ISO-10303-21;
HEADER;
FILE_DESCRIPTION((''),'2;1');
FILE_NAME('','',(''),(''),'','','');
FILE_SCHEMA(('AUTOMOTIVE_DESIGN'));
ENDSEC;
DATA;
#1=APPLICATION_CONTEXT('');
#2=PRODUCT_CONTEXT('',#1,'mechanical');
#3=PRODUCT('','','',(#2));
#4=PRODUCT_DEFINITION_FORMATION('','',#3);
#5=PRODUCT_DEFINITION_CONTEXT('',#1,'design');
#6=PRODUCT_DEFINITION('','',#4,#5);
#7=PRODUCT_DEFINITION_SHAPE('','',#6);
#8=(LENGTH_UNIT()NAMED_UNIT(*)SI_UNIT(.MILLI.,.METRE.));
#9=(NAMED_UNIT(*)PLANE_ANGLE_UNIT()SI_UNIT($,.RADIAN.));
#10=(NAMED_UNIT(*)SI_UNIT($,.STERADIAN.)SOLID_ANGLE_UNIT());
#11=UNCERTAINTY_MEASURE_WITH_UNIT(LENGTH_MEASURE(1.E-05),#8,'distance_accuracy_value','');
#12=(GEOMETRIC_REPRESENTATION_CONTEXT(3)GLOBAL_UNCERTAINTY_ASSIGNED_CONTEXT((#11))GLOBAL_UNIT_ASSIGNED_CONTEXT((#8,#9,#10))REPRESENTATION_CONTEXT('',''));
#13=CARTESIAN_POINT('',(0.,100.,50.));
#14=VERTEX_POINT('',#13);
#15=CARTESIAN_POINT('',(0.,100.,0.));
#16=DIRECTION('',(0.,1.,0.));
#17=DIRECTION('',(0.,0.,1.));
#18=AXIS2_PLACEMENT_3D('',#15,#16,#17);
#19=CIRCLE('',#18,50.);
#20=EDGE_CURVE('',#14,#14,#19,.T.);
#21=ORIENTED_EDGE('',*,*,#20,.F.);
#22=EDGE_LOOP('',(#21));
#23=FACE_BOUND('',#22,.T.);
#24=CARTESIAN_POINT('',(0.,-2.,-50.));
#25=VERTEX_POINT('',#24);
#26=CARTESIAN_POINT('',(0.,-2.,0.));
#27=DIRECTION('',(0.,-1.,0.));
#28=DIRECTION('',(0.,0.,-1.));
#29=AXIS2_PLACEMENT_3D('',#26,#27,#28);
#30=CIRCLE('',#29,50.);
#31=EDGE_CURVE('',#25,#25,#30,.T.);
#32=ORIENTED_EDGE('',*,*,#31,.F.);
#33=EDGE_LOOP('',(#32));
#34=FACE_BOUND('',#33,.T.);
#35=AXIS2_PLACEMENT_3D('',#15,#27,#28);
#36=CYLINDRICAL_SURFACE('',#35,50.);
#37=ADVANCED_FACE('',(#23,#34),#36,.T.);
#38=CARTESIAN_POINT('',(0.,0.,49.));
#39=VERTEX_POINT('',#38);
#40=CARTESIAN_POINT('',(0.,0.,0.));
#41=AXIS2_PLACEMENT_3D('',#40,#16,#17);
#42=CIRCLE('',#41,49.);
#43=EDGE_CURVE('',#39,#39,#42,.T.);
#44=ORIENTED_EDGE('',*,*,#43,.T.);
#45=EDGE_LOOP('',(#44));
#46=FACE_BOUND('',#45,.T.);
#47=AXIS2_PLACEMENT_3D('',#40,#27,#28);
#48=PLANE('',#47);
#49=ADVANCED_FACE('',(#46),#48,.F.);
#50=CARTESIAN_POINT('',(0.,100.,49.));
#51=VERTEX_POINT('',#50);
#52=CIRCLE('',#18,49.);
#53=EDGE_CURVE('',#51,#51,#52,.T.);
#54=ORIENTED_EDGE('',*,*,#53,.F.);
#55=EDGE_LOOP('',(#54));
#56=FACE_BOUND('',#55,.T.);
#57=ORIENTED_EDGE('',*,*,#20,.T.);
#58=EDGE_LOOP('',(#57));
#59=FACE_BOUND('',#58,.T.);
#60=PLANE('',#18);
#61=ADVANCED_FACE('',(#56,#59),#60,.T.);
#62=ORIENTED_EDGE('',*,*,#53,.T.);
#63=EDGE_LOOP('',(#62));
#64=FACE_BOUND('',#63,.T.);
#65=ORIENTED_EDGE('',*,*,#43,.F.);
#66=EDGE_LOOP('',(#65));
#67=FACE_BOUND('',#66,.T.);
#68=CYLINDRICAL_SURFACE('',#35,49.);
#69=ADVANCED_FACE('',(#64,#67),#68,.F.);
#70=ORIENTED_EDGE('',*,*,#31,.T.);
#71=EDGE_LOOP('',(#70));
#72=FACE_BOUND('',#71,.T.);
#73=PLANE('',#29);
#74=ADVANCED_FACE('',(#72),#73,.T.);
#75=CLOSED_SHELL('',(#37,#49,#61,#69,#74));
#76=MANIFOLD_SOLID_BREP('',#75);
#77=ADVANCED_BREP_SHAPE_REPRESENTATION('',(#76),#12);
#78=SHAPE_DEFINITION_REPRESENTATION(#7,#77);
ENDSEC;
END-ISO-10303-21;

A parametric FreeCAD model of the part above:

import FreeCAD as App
import Part
import Sketcher

doc = App.newDocument("Part")
params = doc.addObject("Spreadsheet::Sheet", "Params")
for row, (alias, value) in enumerate([
    ("sketch1_diameter", "100 mm"),
    ("sketch1_diameter2", "98 mm"),
    ("pad1_length", "100 mm"),
    ("sketch2_diameter", "100 mm"),
    ("pad2_length", "2 mm"),
], start=1):
    params.set(f"A{row}", alias)
    params.set(f"B{row}", "=" + value)
    params.setAlias(f"B{row}", alias)

body = doc.addObject("PartDesign::Body", "Body")

# Sketch on XZ plane
sketch1 = body.newObject("Sketcher::SketchObject", "Sketch")
sketch1.AttachmentSupport = (doc.getObject("XZ_Plane"), [""])
sketch1.MapMode = "FlatFace"
sketch1.addGeometry(Part.Circle(App.Vector(0, 0, 0), App.Vector(0, 0, 1), 50), False)
sketch1.addGeometry(Part.Circle(App.Vector(0, 0, 0), App.Vector(0, 0, 1), 49), False)
sketch1.addConstraint(Sketcher.Constraint("Coincident", 0, 3, -1, 1))
sketch1.addConstraint(Sketcher.Constraint("Coincident", 1, 3, -1, 1))
sketch1.addConstraint(Sketcher.Constraint("Diameter", 0, 100.0))
sketch1.addConstraint(Sketcher.Constraint("Diameter", 1, 98.0))
sketch1.setExpression("Constraints[2]", "Params.sketch1_diameter")
sketch1.setExpression("Constraints[3]", "Params.sketch1_diameter2")
pad1 = body.newObject("PartDesign::Pad", "Pad")
pad1.Profile = sketch1
pad1.setExpression("Length", "Params.pad1_length")
pad1.Reversed = True

# Sketch on XZ plane
sketch2 = body.newObject("Sketcher::SketchObject", "Sketch001")
sketch2.AttachmentSupport = (doc.getObject("XZ_Plane"), [""])
sketch2.MapMode = "FlatFace"
sketch2.AttachmentOffset = App.Placement(App.Vector(0, 0, 2), App.Rotation())
sketch2.addGeometry(Part.Circle(App.Vector(0, 0, 0), App.Vector(0, 0, 1), 50), False)
sketch2.addConstraint(Sketcher.Constraint("Coincident", 0, 3, -1, 1))
sketch2.addConstraint(Sketcher.Constraint("Diameter", 0, 100.0))
sketch2.setExpression("Constraints[1]", "Params.sketch2_diameter")
pad2 = body.newObject("PartDesign::Pad", "Pad001")
pad2.Profile = sketch2
pad2.setExpression("Length", "Params.pad2_length")
pad2.Reversed = True

doc.recompute()
